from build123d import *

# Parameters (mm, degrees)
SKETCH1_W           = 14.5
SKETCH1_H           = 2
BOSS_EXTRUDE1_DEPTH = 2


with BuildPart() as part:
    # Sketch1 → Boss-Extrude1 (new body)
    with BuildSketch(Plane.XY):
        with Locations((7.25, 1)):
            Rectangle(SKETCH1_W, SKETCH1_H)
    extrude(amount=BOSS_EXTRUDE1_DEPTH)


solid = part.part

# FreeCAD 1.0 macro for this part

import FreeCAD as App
import Part
import Sketcher
from FreeCAD import Vector
Q = App.Units.Quantity


def add_polygon(sketch, points):
    """Adds a closed chain of lines whose ends are joined by coincident constraints."""
    first, n = sketch.GeometryCount, len(points)
    for a, b in zip(points, points[1:] + points[:1]):
        sketch.addGeometry(Part.LineSegment(App.Vector(*a, 0), App.Vector(*b, 0)), False)
    for i in range(n):
        sketch.addConstraint(Sketcher.Constraint("Coincident", first + i, 2, first + (i + 1) % n, 1))

doc = App.newDocument("Part")
body = doc.addObject("PartDesign::Body", "Body")

# Sketch on XY plane
sketch1 = body.newObject("Sketcher::SketchObject", "Sketch")
sketch1.AttachmentSupport = (doc.getObject("XY_Plane"), [""])
sketch1.MapMode = "FlatFace"
add_polygon(sketch1, [(0, 2), (0, 0), (14.5, 0), (14.5, 2)])  # lines 0-3
sketch1.addConstraint(Sketcher.Constraint("Vertical", 0))
sketch1.addConstraint(Sketcher.Constraint("Horizontal", 1))
sketch1.addConstraint(Sketcher.Constraint("Vertical", 2))
sketch1.addConstraint(Sketcher.Constraint("Horizontal", 3))
sketch1.addConstraint(Sketcher.Constraint("Coincident", 0, 2, -1, 1))
sketch1.addConstraint(Sketcher.Constraint("DistanceY", 0, 2, 0, 1, Q("2 mm")))
sketch1.addConstraint(Sketcher.Constraint("DistanceX", 1, 1, 1, 2, Q("14.5 mm")))
pad1 = body.newObject("PartDesign::Pad", "Pad")
pad1.Profile = sketch1
pad1.Length = 2

doc.recompute()
